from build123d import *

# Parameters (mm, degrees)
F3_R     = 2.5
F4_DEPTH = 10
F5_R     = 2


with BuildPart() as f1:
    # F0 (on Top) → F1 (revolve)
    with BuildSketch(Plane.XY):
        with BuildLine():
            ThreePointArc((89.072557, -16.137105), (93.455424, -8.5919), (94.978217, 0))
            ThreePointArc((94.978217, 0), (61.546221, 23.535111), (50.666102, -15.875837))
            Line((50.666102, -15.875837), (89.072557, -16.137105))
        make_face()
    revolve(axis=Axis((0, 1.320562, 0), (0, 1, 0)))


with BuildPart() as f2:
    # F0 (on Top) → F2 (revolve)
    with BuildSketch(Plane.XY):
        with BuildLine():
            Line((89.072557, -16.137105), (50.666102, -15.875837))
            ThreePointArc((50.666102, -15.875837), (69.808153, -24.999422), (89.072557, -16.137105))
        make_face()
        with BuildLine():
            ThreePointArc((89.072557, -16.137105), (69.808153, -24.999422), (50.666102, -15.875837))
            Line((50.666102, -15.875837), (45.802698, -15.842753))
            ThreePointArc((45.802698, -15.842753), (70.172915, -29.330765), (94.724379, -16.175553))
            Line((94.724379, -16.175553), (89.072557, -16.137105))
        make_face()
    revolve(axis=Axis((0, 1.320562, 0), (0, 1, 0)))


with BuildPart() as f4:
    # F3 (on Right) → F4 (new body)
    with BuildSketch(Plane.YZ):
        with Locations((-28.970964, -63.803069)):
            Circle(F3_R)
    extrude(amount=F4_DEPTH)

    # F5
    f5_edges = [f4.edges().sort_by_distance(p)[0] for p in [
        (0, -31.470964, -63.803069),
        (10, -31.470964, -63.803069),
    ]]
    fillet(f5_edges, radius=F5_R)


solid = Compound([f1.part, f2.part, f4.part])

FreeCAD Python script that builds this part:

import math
import FreeCAD as App
import Part
import Sketcher


def edges_at(feature, points):
    """Names of the edges that pass closest to the given points."""
    edges = feature.Shape.Edges
    near = lambda p: min(range(len(edges)), key=lambda i: edges[i].distToShape(Part.Vertex(*p))[0])
    return sorted({f"Edge{near(p) + 1}" for p in points})

doc = App.newDocument("Part")
body = doc.addObject("PartDesign::Body", "Body")

# Sketch on XY plane
sketch1 = doc.addObject("Sketcher::SketchObject", "Sketch")
body.addObject(sketch1)
sketch1.AttachmentSupport = (doc.XY_Plane, [""])
sketch1.MapMode = "FlatFace"
sketch1.addGeometry([
    Part.ArcOfCircle(Part.Circle(App.Vector(70, 0, 0), App.Vector(0, 0, 1), 25), math.radians(-40), math.radians(0)),
    Part.ArcOfCircle(Part.Circle(App.Vector(70, 0, 0), App.Vector(0, 0, 1), 25), math.radians(0), math.radians(219)),
    Part.LineSegment(App.Vector(51, -16, 0), App.Vector(89, -16, 0)),
], False)
sketch1.addConstraint([
    Sketcher.Constraint("Tangent", 0, 2, 1, 1),
    Sketcher.Constraint("Coincident", 1, 2, 2, 1),
    Sketcher.Constraint("Coincident", 2, 2, 0, 1),
    Sketcher.Constraint("Equal", 0, 1),
    Sketcher.Constraint("PointOnObject", 0, 3, -1),
    Sketcher.Constraint("PointOnObject", 0, 2, -1),
    Sketcher.Constraint("Radius", 0, 24.999998),
    Sketcher.Constraint("DistanceX", -1, 1, 1, 2, 50.666102),
    Sketcher.Constraint("DistanceX", -1, 1, 0, 3, 69.978219),
    Sketcher.Constraint("DistanceX", 2, 2, 0, 2, 5.90566),
])
revolution = doc.addObject("PartDesign::Revolution", "Revolution")
body.addObject(revolution)
revolution.Profile = sketch1
revolution.ReferenceAxis = (sketch1, ["V_Axis"])
revolution.Angle = 360
body2 = doc.addObject("PartDesign::Body", "Body001")

# Sketch on XY plane
sketch2 = doc.addObject("Sketcher::SketchObject", "Sketch001")
body2.addObject(sketch2)
sketch2.AttachmentSupport = (doc.getObject("XY_Plane001"), [""])
sketch2.MapMode = "FlatFace"
sketch2.addGeometry([
    Part.LineSegment(App.Vector(89.1, -16.1, 0), App.Vector(50.7, -15.9, 0)),
    Part.LineSegment(App.Vector(50.7, -15.9, 0), App.Vector(45.8, -15.8, 0)),
    Part.ArcOfCircle(Part.Circle(App.Vector(70.4, -0.2, 0), App.Vector(0, 0, 1), 29.1), math.radians(-148), math.radians(-33)),
    Part.LineSegment(App.Vector(94.7, -16.2, 0), App.Vector(89.1, -16.1, 0)),
], False)
sketch2.addConstraint([
    Sketcher.Constraint("Coincident", 0, 2, 1, 1),
    Sketcher.Constraint("Coincident", 1, 2, 2, 1),
    Sketcher.Constraint("Coincident", 2, 2, 3, 1),
    Sketcher.Constraint("Coincident", 3, 2, 0, 1),
    Sketcher.Constraint("Parallel", 0, 1),
    Sketcher.Constraint("Parallel", 1, 3),
    Sketcher.Constraint("Radius", 2, 29.118699),
    Sketcher.Constraint("DistanceX", 1, 2, 2, 3, 24.568299),
    Sketcher.Constraint("DistanceY", 2, 2, 1, 2, 0.3328),
    Sketcher.Constraint("DistanceY", 2, 3, -1, 1, 0.21274),
    Sketcher.Constraint("DistanceX", -1, 1, 2, 2, 94.724379),
    Sketcher.Constraint("DistanceX", 3, 2, 2, 2, 5.651822),
    Sketcher.Constraint("Distance", 0, 38.407344),
])
revolution2 = doc.addObject("PartDesign::Revolution", "Revolution001")
body2.addObject(revolution2)
revolution2.Profile = sketch2
revolution2.ReferenceAxis = (sketch2, ["V_Axis"])
revolution2.Angle = 360
body3 = doc.addObject("PartDesign::Body", "Body002")

# Sketch on YZ plane
sketch3 = doc.addObject("Sketcher::SketchObject", "Sketch002")
body3.addObject(sketch3)
sketch3.AttachmentSupport = (doc.getObject("YZ_Plane002"), [""])
sketch3.MapMode = "FlatFace"
sketch3.addGeometry(Part.Circle(App.Vector(-29, -63.8, 0), App.Vector(0, 0, 1), 2.5), False)
sketch3.addConstraint([
    Sketcher.Constraint("Diameter", 0, 5.0),
    Sketcher.Constraint("DistanceY", 0, 3, -1, 1, 63.803069),
    Sketcher.Constraint("DistanceX", 0, 3, -1, 1, 28.970964),
])
pad1 = doc.addObject("PartDesign::Pad", "Pad")
body3.addObject(pad1)
pad1.Profile = sketch3
pad1.Length = 10
doc.recompute()

fillet = doc.addObject("PartDesign::Fillet", "Fillet")
body3.addObject(fillet)
fillet.Base = (pad1, edges_at(pad1, [(0, -31.471, -63.803), (10, -31.471, -63.803)]))
fillet.Radius = 2

doc.recompute()
